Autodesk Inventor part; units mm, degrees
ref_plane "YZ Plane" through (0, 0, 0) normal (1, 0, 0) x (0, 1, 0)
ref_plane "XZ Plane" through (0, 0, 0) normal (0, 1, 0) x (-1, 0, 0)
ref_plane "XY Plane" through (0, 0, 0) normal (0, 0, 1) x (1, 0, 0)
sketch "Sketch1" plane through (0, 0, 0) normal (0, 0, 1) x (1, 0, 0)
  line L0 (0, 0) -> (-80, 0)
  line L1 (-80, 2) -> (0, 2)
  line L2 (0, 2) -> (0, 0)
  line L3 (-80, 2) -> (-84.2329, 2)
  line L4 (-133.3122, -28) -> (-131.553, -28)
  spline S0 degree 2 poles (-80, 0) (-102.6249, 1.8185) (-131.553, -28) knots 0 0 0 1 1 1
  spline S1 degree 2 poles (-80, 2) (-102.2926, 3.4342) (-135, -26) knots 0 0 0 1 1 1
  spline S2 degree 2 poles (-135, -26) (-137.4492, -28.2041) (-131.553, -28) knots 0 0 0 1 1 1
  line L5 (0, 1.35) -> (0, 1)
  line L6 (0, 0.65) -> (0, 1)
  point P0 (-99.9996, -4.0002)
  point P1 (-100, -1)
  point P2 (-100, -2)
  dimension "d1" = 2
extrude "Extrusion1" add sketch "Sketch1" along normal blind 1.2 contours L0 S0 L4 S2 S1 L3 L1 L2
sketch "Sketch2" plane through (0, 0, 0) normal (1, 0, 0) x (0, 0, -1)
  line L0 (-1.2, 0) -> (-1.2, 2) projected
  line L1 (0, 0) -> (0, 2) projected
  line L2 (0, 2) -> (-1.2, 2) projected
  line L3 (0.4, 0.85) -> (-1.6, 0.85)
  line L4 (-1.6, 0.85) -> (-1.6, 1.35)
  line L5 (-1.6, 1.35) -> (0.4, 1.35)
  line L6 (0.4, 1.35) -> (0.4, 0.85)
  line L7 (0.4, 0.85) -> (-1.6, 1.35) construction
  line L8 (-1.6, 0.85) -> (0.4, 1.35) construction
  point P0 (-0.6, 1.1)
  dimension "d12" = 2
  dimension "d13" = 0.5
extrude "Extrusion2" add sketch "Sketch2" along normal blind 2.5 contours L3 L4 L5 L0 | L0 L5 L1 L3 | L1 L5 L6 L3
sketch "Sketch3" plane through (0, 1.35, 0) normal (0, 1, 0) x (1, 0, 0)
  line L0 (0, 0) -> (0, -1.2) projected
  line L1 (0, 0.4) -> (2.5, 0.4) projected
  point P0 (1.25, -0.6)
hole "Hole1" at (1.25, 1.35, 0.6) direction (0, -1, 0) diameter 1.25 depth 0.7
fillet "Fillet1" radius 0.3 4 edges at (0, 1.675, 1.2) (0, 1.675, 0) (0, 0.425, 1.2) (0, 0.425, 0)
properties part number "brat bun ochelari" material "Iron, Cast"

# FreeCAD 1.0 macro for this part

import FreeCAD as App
import Part
import Sketcher
Q = App.Units.Quantity


def edges_at(feature, points):
    """Names of the edges that pass closest to the given points."""
    edges = feature.Shape.Edges
    near = lambda p: min(range(len(edges)), key=lambda i: edges[i].distToShape(Part.Vertex(*p))[0])
    return sorted({f"Edge{near(p) + 1}" for p in points})


def add_polygon(sketch, points):
    """Adds a closed chain of lines whose ends are joined by coincident constraints."""
    first, n = sketch.GeometryCount, len(points)
    for a, b in zip(points, points[1:] + points[:1]):
        sketch.addGeometry(Part.LineSegment(App.Vector(*a, 0), App.Vector(*b, 0)), False)
    for i in range(n):
        sketch.addConstraint(Sketcher.Constraint("Coincident", first + i, 2, first + (i + 1) % n, 1))

doc = App.newDocument("Part")
body = doc.addObject("PartDesign::Body", "Body")

sketch1 = doc.addObject("Sketcher::SketchObject", "Sketch")
body.addObject(sketch1)
sketch1.AttachmentSupport = (doc.XY_Plane, [""])
sketch1.MapMode = "FlatFace"
sketch1.addGeometry(Part.LineSegment(App.Vector(-80, 0, 0), App.Vector(0, 0, 0)), False)
sketch1.addGeometry(Part.LineSegment(App.Vector(0, 0, 0), App.Vector(0, 2, 0)), False)
sketch1.addGeometry(Part.LineSegment(App.Vector(0, 2, 0), App.Vector(-84.2329, 2, 0)), False)
sketch1.addGeometry(Part.BSplineCurve([App.Vector(-84.2329, 2.000003, 0), App.Vector(-105.331856, 0.699098, 0), App.Vector(-135, -26, 0)], [3, 3], [0.092922594, 1], False, 2, [1, 1, 1], False), False)
sketch1.addGeometry(Part.BSplineCurve([App.Vector(-135, -26, 0), App.Vector(-137.034019, -27.830467, 0), App.Vector(-133.3122, -27.999995, 0)], [3, 3], [0, 0.830482887], False, 2, [1, 1, 1], False), False)
sketch1.addGeometry(Part.LineSegment(App.Vector(-133.3122, -28, 0), App.Vector(-131.553, -28, 0)), False)
sketch1.addGeometry(Part.BSplineCurve([App.Vector(-80, 0, 0), App.Vector(-102.6249, 1.8185, 0), App.Vector(-131.553, -28, 0)], [3, 3], [0, 1], False, 2, [1, 1, 1], False), False)
sketch1.addConstraint(Sketcher.Constraint("Block", 3))
sketch1.addConstraint(Sketcher.Constraint("Block", 4))
sketch1.addConstraint(Sketcher.Constraint("Block", 6))
sketch1.addConstraint(Sketcher.Constraint("Coincident", 0, 2, 1, 1))
sketch1.addConstraint(Sketcher.Constraint("Coincident", 1, 2, 2, 1))
sketch1.addConstraint(Sketcher.Constraint("Coincident", 2, 2, 3, 1))
sketch1.addConstraint(Sketcher.Constraint("Coincident", 4, 2, 5, 1))
sketch1.addConstraint(Sketcher.Constraint("Coincident", 5, 2, 6, 2))
sketch1.addConstraint(Sketcher.Constraint("Coincident", 6, 1, 0, 1))
sketch1.addConstraint(Sketcher.Constraint("Horizontal", 0))
sketch1.addConstraint(Sketcher.Constraint("Vertical", 1))
sketch1.addConstraint(Sketcher.Constraint("Horizontal", 2))
sketch1.addConstraint(Sketcher.Constraint("PointOnObject", 1, 2, -2))
pad1 = doc.addObject("PartDesign::Pad", "Pad")
body.addObject(pad1)
pad1.Profile = sketch1
pad1.Length = 1.2

sketch2 = doc.addObject("Sketcher::SketchObject", "Sketch001")
body.addObject(sketch2)
sketch2.AttachmentSupport = (doc.YZ_Plane, [""])
sketch2.MapMode = "FlatFace"
add_polygon(sketch2, [(0.8, 1.6), (0.8, -0.4), (1.4, -0.4), (1.4, 1.6)])
sketch2.addConstraint(Sketcher.Constraint("Vertical", 0))
sketch2.addConstraint(Sketcher.Constraint("Horizontal", 1))
sketch2.addConstraint(Sketcher.Constraint("Vertical", 2))
sketch2.addConstraint(Sketcher.Constraint("Horizontal", 3))
sketch2.addConstraint(Sketcher.Constraint("DistanceY", 0, 2, 0, 1, Q("2 mm")))
sketch2.addConstraint(Sketcher.Constraint("DistanceX", 1, 1, 1, 2, Q("0.5 mm")))
sketch2.addConstraint(Sketcher.Constraint("DistanceY", 0, 2, -1, 1, Q("0.4 mm")))
sketch2.addConstraint(Sketcher.Constraint("DistanceX", -1, 1, 0, 2, Q("0.85 mm")))
pad2 = doc.addObject("PartDesign::Pad", "Pad001")
body.addObject(pad2)
pad2.Profile = sketch2
pad2.Length = 2.5

sketch3 = doc.addObject("Sketcher::SketchObject", "Sketch002")
body.addObject(sketch3)
sketch3.AttachmentSupport = (doc.XZ_Plane, [""])
sketch3.MapMode = "FlatFace"
sketch3.AttachmentOffset = App.Placement(App.Vector(0, 0, -1.35), App.Rotation())
sketch3.addGeometry(Part.Circle(App.Vector(1.2, 0.6, 0), App.Vector(0, 0, 1), 0.6), False)
sketch3.addConstraint(Sketcher.Constraint("Diameter", 0, Q("1.25 mm")))
sketch3.addConstraint(Sketcher.Constraint("DistanceY", -1, 1, 0, 3, Q("0.6 mm")))
sketch3.addConstraint(Sketcher.Constraint("DistanceX", -1, 1, 0, 3, Q("1.25 mm")))
doc.recompute()
hole = doc.addObject("PartDesign::Hole", "Hole")
body.addObject(hole)
hole.Profile = sketch3
hole.ThreadType = "None"
hole.Diameter = 1.25
hole.DepthType = "Dimension"
hole.Depth = 0.7
hole.DrillPoint = "Flat"
hole.Reversed = True
doc.recompute()

fillet = doc.addObject("PartDesign::Fillet", "Fillet")
body.addObject(fillet)
fillet.Base = (hole, edges_at(hole, [
    (0, 1.675, 1.2),
    (0, 1.675, 0),
    (0, 0.425, 1.2),
    (0, 0.425, 0),
]))
fillet.Radius = 0.3

doc.recompute()
